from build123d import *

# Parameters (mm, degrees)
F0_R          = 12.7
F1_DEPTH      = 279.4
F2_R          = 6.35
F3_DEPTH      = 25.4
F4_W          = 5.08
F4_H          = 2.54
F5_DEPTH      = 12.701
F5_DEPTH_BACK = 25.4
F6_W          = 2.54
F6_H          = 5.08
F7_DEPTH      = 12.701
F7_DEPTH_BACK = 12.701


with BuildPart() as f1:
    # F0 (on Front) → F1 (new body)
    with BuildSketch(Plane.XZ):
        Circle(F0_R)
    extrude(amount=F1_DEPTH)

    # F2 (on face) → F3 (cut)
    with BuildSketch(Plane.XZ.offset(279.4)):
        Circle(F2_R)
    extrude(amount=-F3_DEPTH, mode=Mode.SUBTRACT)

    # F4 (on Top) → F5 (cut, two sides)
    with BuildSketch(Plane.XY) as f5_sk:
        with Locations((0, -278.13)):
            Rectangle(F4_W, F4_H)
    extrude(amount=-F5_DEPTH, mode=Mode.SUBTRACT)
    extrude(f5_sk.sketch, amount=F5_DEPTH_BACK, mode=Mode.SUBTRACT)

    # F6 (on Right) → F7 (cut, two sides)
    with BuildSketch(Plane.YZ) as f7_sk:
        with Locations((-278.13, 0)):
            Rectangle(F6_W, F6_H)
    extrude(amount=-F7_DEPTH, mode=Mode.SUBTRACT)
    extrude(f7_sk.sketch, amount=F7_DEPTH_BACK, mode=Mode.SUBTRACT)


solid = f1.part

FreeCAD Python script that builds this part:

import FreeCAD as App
import Part
import Sketcher

V = App.Vector
Q = App.Units.Quantity

doc = App.newDocument("Part")
body = doc.addObject("PartDesign::Body", "Body")

sketch1 = doc.addObject("Sketcher::SketchObject", "Sketch")
body.addObject(sketch1)
sketch1.AttachmentSupport = (doc.XZ_Plane, [""])
sketch1.MapMode = "FlatFace"
sketch1.addGeometry(Part.Circle(V(0, 0, 0), V(0, 0, 1), 12.7), False)
sketch1.addConstraint([
    Sketcher.Constraint("Coincident", 0, 3, -1, 1),
    Sketcher.Constraint("Diameter", 0, Q("1 in")),
])
pad1 = doc.addObject("PartDesign::Pad", "Pad")
body.addObject(pad1)
pad1.Profile = sketch1
pad1.Length = Q("11 in")

sketch2 = doc.addObject("Sketcher::SketchObject", "Sketch001")
body.addObject(sketch2)
sketch2.AttachmentSupport = (doc.XZ_Plane, [""])
sketch2.MapMode = "FlatFace"
sketch2.AttachmentOffset = App.Placement(V(0, 0, 11 * 25.4), App.Rotation())
sketch2.addGeometry(Part.Circle(V(0, 0, 0), V(0, 0, 1), 6.35), False)
sketch2.addConstraint([
    Sketcher.Constraint("Coincident", 0, 3, -1, 1),
    Sketcher.Constraint("Diameter", 0, Q("0.5 in")),
])
pocket1 = doc.addObject("PartDesign::Pocket", "Pocket")
body.addObject(pocket1)
pocket1.Profile = sketch2
pocket1.Length = Q("1 in")

sketch3 = doc.addObject("Sketcher::SketchObject", "Sketch002")
body.addObject(sketch3)
sketch3.AttachmentSupport = (doc.XY_Plane, [""])
sketch3.MapMode = "FlatFace"
sketch3.addGeometry([
    Part.LineSegment(V(-2.54, -276.86, 0), V(-2.54, -279.4, 0)),
    Part.LineSegment(V(-2.54, -279.4, 0), V(2.54, -279.4, 0)),
    Part.LineSegment(V(2.54, -279.4, 0), V(2.54, -276.86, 0)),
    Part.LineSegment(V(2.54, -276.86, 0), V(-2.54, -276.86, 0)),
], False)
sketch3.addConstraint([
    Sketcher.Constraint("Coincident", 0, 2, 1, 1),
    Sketcher.Constraint("Coincident", 1, 2, 2, 1),
    Sketcher.Constraint("Coincident", 2, 2, 3, 1),
    Sketcher.Constraint("Coincident", 3, 2, 0, 1),
    Sketcher.Constraint("Vertical", 0),
    Sketcher.Constraint("Horizontal", 1),
    Sketcher.Constraint("Vertical", 2),
    Sketcher.Constraint("Horizontal", 3),
    Sketcher.Constraint("DistanceX", 1, 1, 1, 2, Q("0.2 in")),
    Sketcher.Constraint("DistanceY", 0, 2, 0, 1, Q("0.1 in")),
    Sketcher.Constraint("DistanceY", 0, 2, -1, 1, Q("11 in")),
    Sketcher.Constraint("DistanceX", 0, 2, -1, 1, Q("0.1 in")),
])
pocket2 = doc.addObject("PartDesign::Pocket", "Pocket001")
body.addObject(pocket2)
pocket2.Profile = sketch3
pocket2.Type = "ThroughAll"
pocket2.Midplane = True

sketch4 = doc.addObject("Sketcher::SketchObject", "Sketch003")
body.addObject(sketch4)
sketch4.AttachmentSupport = (doc.YZ_Plane, [""])
sketch4.MapMode = "FlatFace"
sketch4.addGeometry([
    Part.LineSegment(V(-279.4, 2.54, 0), V(-279.4, -2.54, 0)),
    Part.LineSegment(V(-279.4, -2.54, 0), V(-276.86, -2.54, 0)),
    Part.LineSegment(V(-276.86, -2.54, 0), V(-276.86, 2.54, 0)),
    Part.LineSegment(V(-276.86, 2.54, 0), V(-279.4, 2.54, 0)),
], False)
sketch4.addConstraint([
    Sketcher.Constraint("Coincident", 0, 2, 1, 1),
    Sketcher.Constraint("Coincident", 1, 2, 2, 1),
    Sketcher.Constraint("Coincident", 2, 2, 3, 1),
    Sketcher.Constraint("Coincident", 3, 2, 0, 1),
    Sketcher.Constraint("Vertical", 0),
    Sketcher.Constraint("Horizontal", 1),
    Sketcher.Constraint("Vertical", 2),
    Sketcher.Constraint("Horizontal", 3),
    Sketcher.Constraint("DistanceX", 1, 1, 1, 2, Q("0.1 in")),
    Sketcher.Constraint("DistanceY", 0, 2, 0, 1, Q("0.2 in")),
    Sketcher.Constraint("DistanceX", 0, 2, -1, 1, Q("11 in")),
    Sketcher.Constraint("DistanceY", 0, 2, -1, 1, Q("0.1 in")),
])
pocket3 = doc.addObject("PartDesign::Pocket", "Pocket002")
body.addObject(pocket3)
pocket3.Profile = sketch4
pocket3.Type = "ThroughAll"
pocket3.Midplane = True

doc.recompute()
